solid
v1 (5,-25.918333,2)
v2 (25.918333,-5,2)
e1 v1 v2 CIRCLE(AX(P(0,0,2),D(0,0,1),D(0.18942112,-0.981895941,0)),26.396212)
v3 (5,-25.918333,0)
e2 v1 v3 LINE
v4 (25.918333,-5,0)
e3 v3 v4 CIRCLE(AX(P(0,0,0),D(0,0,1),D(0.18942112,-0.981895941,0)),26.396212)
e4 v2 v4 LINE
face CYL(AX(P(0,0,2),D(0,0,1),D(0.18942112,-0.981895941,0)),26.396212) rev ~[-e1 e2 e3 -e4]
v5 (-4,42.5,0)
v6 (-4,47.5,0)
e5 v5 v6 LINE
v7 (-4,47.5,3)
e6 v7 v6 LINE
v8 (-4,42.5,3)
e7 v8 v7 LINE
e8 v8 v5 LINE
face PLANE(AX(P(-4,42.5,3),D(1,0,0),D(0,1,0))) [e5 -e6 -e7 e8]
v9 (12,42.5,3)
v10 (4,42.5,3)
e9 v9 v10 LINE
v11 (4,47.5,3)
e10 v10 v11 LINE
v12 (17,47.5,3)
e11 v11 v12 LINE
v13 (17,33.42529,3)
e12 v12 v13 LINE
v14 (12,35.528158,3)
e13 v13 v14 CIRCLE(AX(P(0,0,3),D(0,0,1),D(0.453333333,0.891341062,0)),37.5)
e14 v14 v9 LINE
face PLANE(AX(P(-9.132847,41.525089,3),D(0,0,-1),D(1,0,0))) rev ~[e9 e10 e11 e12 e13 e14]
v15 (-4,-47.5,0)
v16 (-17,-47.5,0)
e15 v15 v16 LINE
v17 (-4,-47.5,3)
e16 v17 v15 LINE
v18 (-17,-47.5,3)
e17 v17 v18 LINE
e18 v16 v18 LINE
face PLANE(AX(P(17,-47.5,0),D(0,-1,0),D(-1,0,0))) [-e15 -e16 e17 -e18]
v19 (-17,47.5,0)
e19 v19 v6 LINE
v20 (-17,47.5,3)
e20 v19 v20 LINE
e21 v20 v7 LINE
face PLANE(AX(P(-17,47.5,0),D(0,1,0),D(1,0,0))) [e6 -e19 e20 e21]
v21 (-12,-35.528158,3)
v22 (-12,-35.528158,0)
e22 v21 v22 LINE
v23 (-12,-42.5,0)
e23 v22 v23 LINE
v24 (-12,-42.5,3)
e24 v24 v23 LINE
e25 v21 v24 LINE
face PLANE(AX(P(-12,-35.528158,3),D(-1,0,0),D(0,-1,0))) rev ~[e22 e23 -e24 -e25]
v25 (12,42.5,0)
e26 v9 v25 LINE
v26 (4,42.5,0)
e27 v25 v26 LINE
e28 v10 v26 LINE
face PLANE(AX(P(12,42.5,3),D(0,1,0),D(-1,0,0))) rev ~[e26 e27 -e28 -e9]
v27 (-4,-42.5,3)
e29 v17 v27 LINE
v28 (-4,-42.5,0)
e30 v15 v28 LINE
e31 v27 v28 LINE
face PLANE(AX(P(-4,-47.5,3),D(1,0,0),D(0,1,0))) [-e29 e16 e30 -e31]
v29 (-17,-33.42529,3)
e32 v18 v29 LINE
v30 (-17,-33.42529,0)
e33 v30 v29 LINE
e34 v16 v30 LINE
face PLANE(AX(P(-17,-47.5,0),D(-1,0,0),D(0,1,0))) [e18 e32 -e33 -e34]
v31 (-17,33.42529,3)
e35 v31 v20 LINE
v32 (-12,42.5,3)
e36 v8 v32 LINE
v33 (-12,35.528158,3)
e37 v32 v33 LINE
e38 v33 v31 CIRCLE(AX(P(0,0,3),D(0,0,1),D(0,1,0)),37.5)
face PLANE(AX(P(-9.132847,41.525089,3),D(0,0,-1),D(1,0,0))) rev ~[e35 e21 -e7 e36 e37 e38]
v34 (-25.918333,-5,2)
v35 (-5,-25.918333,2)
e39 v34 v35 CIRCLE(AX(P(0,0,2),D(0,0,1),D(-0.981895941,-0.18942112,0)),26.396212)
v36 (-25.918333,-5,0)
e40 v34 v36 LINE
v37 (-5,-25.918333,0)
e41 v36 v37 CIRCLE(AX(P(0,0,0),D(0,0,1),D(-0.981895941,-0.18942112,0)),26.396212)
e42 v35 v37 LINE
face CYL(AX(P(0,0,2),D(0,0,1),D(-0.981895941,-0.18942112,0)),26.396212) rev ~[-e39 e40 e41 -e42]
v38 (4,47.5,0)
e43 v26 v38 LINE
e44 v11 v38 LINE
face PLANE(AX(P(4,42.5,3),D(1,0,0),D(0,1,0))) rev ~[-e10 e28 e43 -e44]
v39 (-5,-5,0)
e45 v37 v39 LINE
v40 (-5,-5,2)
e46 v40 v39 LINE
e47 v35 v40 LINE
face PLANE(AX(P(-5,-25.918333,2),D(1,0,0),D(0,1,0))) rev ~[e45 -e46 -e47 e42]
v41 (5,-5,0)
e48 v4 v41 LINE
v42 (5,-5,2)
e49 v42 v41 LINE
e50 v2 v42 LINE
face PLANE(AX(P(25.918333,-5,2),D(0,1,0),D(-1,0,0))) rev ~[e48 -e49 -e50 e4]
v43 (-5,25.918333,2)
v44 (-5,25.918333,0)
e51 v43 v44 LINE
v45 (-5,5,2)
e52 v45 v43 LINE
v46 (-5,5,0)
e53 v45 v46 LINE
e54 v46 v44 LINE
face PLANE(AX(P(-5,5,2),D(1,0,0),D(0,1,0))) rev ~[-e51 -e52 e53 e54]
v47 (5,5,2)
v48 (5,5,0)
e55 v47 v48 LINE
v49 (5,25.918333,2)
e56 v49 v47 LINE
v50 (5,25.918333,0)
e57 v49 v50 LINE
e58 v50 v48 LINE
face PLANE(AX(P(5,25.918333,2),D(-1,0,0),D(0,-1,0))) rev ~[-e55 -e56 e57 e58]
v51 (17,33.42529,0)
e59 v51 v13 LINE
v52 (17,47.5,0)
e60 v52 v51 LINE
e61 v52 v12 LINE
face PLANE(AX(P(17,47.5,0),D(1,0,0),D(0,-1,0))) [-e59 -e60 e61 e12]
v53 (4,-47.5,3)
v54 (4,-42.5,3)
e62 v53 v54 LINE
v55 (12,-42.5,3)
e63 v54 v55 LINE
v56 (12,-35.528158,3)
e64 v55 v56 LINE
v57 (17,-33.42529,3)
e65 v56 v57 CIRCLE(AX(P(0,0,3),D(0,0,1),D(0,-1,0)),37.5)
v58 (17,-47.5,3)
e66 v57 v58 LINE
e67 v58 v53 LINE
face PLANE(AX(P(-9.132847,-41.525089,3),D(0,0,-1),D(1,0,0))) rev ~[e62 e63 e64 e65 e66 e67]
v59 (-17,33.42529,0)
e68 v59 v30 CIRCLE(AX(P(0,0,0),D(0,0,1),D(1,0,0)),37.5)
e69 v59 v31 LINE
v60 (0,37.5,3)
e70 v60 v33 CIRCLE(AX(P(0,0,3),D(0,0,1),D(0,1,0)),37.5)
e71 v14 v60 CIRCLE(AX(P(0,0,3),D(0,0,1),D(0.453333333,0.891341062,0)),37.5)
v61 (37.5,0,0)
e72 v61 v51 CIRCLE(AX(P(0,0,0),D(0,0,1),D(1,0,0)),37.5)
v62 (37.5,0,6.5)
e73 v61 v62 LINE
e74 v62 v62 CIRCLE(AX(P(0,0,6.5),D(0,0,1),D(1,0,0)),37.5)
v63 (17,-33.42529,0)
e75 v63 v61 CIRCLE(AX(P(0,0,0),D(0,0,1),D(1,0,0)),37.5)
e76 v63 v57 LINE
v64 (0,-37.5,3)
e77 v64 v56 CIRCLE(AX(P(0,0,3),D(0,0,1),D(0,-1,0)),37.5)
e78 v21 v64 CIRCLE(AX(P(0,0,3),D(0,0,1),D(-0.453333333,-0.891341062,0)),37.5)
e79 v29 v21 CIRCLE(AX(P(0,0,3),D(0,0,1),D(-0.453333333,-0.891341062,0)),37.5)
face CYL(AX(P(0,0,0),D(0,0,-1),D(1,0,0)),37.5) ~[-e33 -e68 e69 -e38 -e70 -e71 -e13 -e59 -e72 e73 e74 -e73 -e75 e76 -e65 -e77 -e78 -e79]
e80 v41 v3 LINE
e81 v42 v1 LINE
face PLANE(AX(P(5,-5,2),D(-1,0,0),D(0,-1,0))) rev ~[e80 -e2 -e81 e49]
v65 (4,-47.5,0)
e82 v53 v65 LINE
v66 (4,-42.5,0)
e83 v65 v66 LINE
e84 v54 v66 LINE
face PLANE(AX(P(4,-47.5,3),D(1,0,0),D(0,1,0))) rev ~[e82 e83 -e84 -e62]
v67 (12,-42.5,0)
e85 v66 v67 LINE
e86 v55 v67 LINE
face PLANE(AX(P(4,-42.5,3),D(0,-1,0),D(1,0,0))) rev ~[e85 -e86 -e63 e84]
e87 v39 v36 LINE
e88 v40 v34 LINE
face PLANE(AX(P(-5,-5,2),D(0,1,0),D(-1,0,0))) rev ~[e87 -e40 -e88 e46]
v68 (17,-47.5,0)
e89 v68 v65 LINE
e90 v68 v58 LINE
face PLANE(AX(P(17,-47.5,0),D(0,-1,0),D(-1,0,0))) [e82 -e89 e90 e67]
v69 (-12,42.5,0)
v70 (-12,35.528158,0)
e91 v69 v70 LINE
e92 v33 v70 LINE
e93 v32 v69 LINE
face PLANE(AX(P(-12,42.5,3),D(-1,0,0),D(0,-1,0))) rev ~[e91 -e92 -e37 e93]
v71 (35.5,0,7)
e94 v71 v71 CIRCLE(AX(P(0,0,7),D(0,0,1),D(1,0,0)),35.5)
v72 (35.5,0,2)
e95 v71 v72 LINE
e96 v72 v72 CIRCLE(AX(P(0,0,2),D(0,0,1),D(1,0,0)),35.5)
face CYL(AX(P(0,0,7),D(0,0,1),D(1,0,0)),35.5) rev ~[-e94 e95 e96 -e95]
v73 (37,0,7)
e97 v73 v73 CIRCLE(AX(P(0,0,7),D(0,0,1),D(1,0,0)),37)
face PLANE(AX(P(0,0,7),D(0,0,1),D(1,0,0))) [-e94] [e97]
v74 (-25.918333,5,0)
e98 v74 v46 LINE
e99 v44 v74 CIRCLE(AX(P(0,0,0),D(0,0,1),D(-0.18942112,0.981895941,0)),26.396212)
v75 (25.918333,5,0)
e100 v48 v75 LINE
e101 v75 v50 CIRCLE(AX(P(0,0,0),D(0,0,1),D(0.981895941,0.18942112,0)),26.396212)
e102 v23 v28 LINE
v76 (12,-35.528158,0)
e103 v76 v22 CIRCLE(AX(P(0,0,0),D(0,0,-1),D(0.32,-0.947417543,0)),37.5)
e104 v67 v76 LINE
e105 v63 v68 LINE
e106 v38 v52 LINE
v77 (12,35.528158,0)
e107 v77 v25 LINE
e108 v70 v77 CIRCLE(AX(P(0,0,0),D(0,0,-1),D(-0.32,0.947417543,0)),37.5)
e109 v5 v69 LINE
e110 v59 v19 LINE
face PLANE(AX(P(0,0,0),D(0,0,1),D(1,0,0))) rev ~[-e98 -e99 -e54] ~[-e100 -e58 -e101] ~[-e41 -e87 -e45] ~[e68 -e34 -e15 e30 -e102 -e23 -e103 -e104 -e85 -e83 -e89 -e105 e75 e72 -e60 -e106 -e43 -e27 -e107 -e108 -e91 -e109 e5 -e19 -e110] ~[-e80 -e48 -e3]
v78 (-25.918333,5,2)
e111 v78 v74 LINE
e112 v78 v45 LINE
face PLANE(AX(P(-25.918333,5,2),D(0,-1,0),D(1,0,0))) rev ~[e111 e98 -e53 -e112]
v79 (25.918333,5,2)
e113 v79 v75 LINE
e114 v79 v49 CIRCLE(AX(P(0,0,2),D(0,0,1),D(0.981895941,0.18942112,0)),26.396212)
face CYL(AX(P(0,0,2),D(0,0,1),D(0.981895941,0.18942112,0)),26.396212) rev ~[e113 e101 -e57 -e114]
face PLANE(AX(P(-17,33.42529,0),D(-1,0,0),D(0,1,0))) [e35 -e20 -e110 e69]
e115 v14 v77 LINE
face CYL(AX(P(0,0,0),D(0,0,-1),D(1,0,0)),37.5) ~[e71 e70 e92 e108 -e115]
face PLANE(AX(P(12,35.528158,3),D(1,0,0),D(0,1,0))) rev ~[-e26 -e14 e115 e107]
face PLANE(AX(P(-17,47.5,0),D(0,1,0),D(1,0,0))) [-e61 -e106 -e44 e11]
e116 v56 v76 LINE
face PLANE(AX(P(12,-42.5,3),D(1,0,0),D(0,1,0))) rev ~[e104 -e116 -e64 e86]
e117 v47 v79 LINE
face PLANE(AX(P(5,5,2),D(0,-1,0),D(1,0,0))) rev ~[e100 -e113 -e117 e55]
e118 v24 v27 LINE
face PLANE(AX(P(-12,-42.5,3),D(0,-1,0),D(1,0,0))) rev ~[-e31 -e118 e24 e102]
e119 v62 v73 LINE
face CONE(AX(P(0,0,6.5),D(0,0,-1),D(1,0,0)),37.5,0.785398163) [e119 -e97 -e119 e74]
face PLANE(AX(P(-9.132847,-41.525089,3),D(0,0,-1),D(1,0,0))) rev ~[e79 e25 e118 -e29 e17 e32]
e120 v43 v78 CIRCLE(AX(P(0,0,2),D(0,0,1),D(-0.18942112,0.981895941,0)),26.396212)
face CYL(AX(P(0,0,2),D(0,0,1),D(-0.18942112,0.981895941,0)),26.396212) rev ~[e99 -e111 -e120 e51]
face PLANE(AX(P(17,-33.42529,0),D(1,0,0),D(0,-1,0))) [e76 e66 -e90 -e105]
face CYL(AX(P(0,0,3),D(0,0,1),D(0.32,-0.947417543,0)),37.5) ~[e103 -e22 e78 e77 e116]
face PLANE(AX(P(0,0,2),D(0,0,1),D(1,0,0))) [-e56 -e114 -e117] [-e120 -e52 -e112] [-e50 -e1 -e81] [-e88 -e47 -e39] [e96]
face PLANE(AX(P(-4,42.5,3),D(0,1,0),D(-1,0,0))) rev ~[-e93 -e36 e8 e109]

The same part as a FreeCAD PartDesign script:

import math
import FreeCAD as App
import Part
import Sketcher

V = App.Vector
Q = App.Units.Quantity


def edges_at(feature, points):
    """Names of the edges that pass closest to the given points."""
    edges = feature.Shape.Edges
    near = lambda p: min(range(len(edges)), key=lambda i: edges[i].distToShape(Part.Vertex(*p))[0])
    return sorted({f"Edge{near(p) + 1}" for p in points})

doc = App.newDocument("Part")
body = doc.addObject("PartDesign::Body", "Body")

sketch1 = body.newObject("Sketcher::SketchObject", "Sketch")
sketch1.AttachmentSupport = (doc.getObject("XY_Plane"), [""])
sketch1.MapMode = "FlatFace"
sketch1.addGeometry(Part.Circle(V(0, 0, 0), V(0, 0, 1), 38), False)
sketch1.addConstraint([
    Sketcher.Constraint("Coincident", 0, 3, -1, 1),
    Sketcher.Constraint("Diameter", 0, Q("75 mm")),
])
pad1 = body.newObject("PartDesign::Pad", "Pad")
pad1.Profile = sketch1
pad1.Length = 7

sketch2 = body.newObject("Sketcher::SketchObject", "Sketch001")
sketch2.AttachmentSupport = (doc.getObject("XY_Plane"), [""])
sketch2.MapMode = "FlatFace"
sketch2.AttachmentOffset = App.Placement(V(0, 0, 7), App.Rotation())
sketch2.addGeometry(Part.Circle(V(0, 0, 0), V(0, 0, 1), 36), False)
sketch2.addConstraint([
    Sketcher.Constraint("Coincident", 0, 3, -1, 1),
    Sketcher.Constraint("Diameter", 0, Q("71 mm")),
])
pocket1 = body.newObject("PartDesign::Pocket", "Pocket")
pocket1.Profile = sketch2
pocket1.Length = 5
doc.recompute()

chamfer = body.newObject("PartDesign::Chamfer", "Chamfer")
chamfer.Base = (pocket1, edges_at(pocket1, [(-37.5, 0, 7)]))
chamfer.Size = 0.5

sketch3 = body.newObject("Sketcher::SketchObject", "Sketch002")
sketch3.AttachmentSupport = (doc.getObject("XY_Plane"), [""])
sketch3.MapMode = "FlatFace"
sketch3.addGeometry([
    Part.ArcOfCircle(Part.Circle(V(0, 0, 0), V(0, 0, 1), 38), math.radians(-117), math.radians(-90)),
    Part.ArcOfCircle(Part.Circle(V(0, 0, 0), V(0, 0, 1), 38), math.radians(-90), math.radians(-63)),
    Part.LineSegment(V(17, -33, 0), V(17, -48, 0)),
    Part.LineSegment(V(17, -48, 0), V(-17, -48, 0)),
    Part.LineSegment(V(-17, -48, 0), V(-17, -33, 0)),
    Part.ArcOfCircle(Part.Circle(V(0, 0, 0), V(0, 0, 1), 38), math.radians(90), math.radians(117)),
    Part.LineSegment(V(-17, 33, 0), V(-17, 48, 0)),
    Part.LineSegment(V(-17, 48, 0), V(17, 48, 0)),
    Part.LineSegment(V(17, 48, 0), V(17, 33, 0)),
    Part.ArcOfCircle(Part.Circle(V(0, 0, 0), V(0, 0, 1), 38), math.radians(63), math.radians(90)),
], False)
sketch3.addConstraint([
    Sketcher.Constraint("Tangent", 0, 2, 1, 1),
    Sketcher.Constraint("Coincident", 1, 2, 2, 1),
    Sketcher.Constraint("Coincident", 2, 2, 3, 1),
    Sketcher.Constraint("Coincident", 3, 2, 4, 1),
    Sketcher.Constraint("Coincident", 4, 2, 0, 1),
    Sketcher.Constraint("Coincident", 5, 2, 6, 1),
    Sketcher.Constraint("Coincident", 6, 2, 7, 1),
    Sketcher.Constraint("Coincident", 7, 2, 8, 1),
    Sketcher.Constraint("Coincident", 8, 2, 9, 1),
    Sketcher.Constraint("Tangent", 9, 2, 5, 1),
    Sketcher.Constraint("Vertical", 2),
    Sketcher.Constraint("Horizontal", 3),
    Sketcher.Constraint("Vertical", 4),
    Sketcher.Constraint("Vertical", 6),
    Sketcher.Constraint("Horizontal", 7),
    Sketcher.Constraint("Vertical", 8),
    Sketcher.Constraint("Coincident", 0, 3, -1, 1),
    Sketcher.Constraint("Coincident", 5, 3, -1, 1),
    Sketcher.Constraint("Equal", 0, 1),
    Sketcher.Constraint("Equal", 1, 5),
    Sketcher.Constraint("Equal", 5, 9),
    Sketcher.Constraint("Symmetric", 2, 2, 6, 2, -1, 1),
    Sketcher.Constraint("PointOnObject", 0, 2, -2),
    Sketcher.Constraint("PointOnObject", 9, 2, -2),
    Sketcher.Constraint("Horizontal", 1, 2, 4, 2),
    Sketcher.Constraint("Horizontal", 5, 2, 8, 2),
    Sketcher.Constraint("Radius", 0, Q("37.5 mm")),
    Sketcher.Constraint("DistanceX", 3, 2, 3, 1, Q("34 mm")),
    Sketcher.Constraint("DistanceY", 2, 2, 0, 2, Q("10 mm")),
])
pad2 = body.newObject("PartDesign::Pad", "Pad001")
pad2.Profile = sketch3
pad2.Length = 3

sketch4 = body.newObject("Sketcher::SketchObject", "Sketch003")
sketch4.AttachmentSupport = (doc.getObject("XY_Plane"), [""])
sketch4.MapMode = "FlatFace"
sketch4.AttachmentOffset = App.Placement(V(0, 0, 3), App.Rotation())
sketch4.addGeometry([
    Part.LineSegment(V(-12, 42, 0), V(-12, 36, 0)),
    Part.ArcOfCircle(Part.Circle(V(0, 0, 0), V(0, 0, 1), 38), math.radians(71), math.radians(109)),
    Part.LineSegment(V(12, 36, 0), V(12, 42, 0)),
    Part.LineSegment(V(12, 42, 0), V(4, 42, 0)),
    Part.LineSegment(V(4, 42, 0), V(4, 48, 0)),
    Part.LineSegment(V(4, 48, 0), V(-4, 48, 0)),
    Part.LineSegment(V(-4, 48, 0), V(-4, 42, 0)),
    Part.LineSegment(V(-4, 42, 0), V(-12, 42, 0)),
], False)
sketch4.addConstraint([
    Sketcher.Constraint("Coincident", 0, 2, 1, 2),
    Sketcher.Constraint("Coincident", 1, 1, 2, 1),
    Sketcher.Constraint("Coincident", 2, 2, 3, 1),
    Sketcher.Constraint("Coincident", 3, 2, 4, 1),
    Sketcher.Constraint("Coincident", 4, 2, 5, 1),
    Sketcher.Constraint("Coincident", 5, 2, 6, 1),
    Sketcher.Constraint("Coincident", 6, 2, 7, 1),
    Sketcher.Constraint("Coincident", 7, 2, 0, 1),
    Sketcher.Constraint("Vertical", 0),
    Sketcher.Constraint("Vertical", 2),
    Sketcher.Constraint("Horizontal", 3),
    Sketcher.Constraint("Vertical", 4),
    Sketcher.Constraint("Horizontal", 5),
    Sketcher.Constraint("Vertical", 6),
    Sketcher.Constraint("Horizontal", 7),
    Sketcher.Constraint("Coincident", 1, 3, -1, 1),
    Sketcher.Constraint("Symmetric", 3, 2, 6, 2, -2),
    Sketcher.Constraint("Horizontal", 0, 2, 1, 1),
    Sketcher.Constraint("Equal", 3, 5),
    Sketcher.Constraint("Radius", 1, Q("37.5 mm")),
    Sketcher.Constraint("DistanceX", 3, 2, 3, 1, Q("8 mm")),
    Sketcher.Constraint("DistanceY", 4, 1, 4, 2, Q("5 mm")),
    Sketcher.Constraint("DistanceY", -1, 1, 2, 2, Q("42.5 mm")),
])
pocket2 = body.newObject("PartDesign::Pocket", "Pocket001")
pocket2.Profile = sketch4
pocket2.Type = "ThroughAll"

sketch5 = body.newObject("Sketcher::SketchObject", "Sketch004")
sketch5.AttachmentSupport = (doc.getObject("XY_Plane"), [""])
sketch5.MapMode = "FlatFace"
sketch5.AttachmentOffset = App.Placement(V(0, 0, 3), App.Rotation())
sketch5.addGeometry([
    Part.LineSegment(V(12, -42, 0), V(12, -36, 0)),
    Part.ArcOfCircle(Part.Circle(V(0, 0, 0), V(0, 0, 1), 38), math.radians(-109), math.radians(-71)),
    Part.LineSegment(V(-12, -36, 0), V(-12, -42, 0)),
    Part.LineSegment(V(-12, -42, 0), V(-4, -42, 0)),
    Part.LineSegment(V(-4, -42, 0), V(-4, -48, 0)),
    Part.LineSegment(V(-4, -48, 0), V(4, -48, 0)),
    Part.LineSegment(V(4, -48, 0), V(4, -42, 0)),
    Part.LineSegment(V(4, -42, 0), V(12, -42, 0)),
], False)
sketch5.addConstraint([
    Sketcher.Constraint("Coincident", 0, 2, 1, 2),
    Sketcher.Constraint("Coincident", 1, 1, 2, 1),
    Sketcher.Constraint("Coincident", 2, 2, 3, 1),
    Sketcher.Constraint("Coincident", 3, 2, 4, 1),
    Sketcher.Constraint("Coincident", 4, 2, 5, 1),
    Sketcher.Constraint("Coincident", 5, 2, 6, 1),
    Sketcher.Constraint("Coincident", 6, 2, 7, 1),
    Sketcher.Constraint("Coincident", 7, 2, 0, 1),
    Sketcher.Constraint("Vertical", 0),
    Sketcher.Constraint("Vertical", 2),
    Sketcher.Constraint("Horizontal", 3),
    Sketcher.Constraint("Vertical", 4),
    Sketcher.Constraint("Horizontal", 5),
    Sketcher.Constraint("Vertical", 6),
    Sketcher.Constraint("Horizontal", 7),
    Sketcher.Constraint("Coincident", 1, 3, -1, 1),
    Sketcher.Constraint("Symmetric", 3, 2, 6, 2, -2),
    Sketcher.Constraint("Horizontal", 0, 2, 1, 1),
    Sketcher.Constraint("Equal", 3, 5),
    Sketcher.Constraint("Radius", 1, Q("37.5 mm")),
    Sketcher.Constraint("DistanceX", 3, 1, 3, 2, Q("8 mm")),
    Sketcher.Constraint("DistanceY", 4, 2, 4, 1, Q("5 mm")),
    Sketcher.Constraint("DistanceY", 2, 2, -1, 1, Q("42.5 mm")),
])
pocket3 = body.newObject("PartDesign::Pocket", "Pocket002")
pocket3.Profile = sketch5
pocket3.Type = "ThroughAll"

sketch6 = body.newObject("Sketcher::SketchObject", "Sketch005")
sketch6.AttachmentSupport = (doc.getObject("XY_Plane"), [""])
sketch6.MapMode = "FlatFace"
sketch6.AttachmentOffset = App.Placement(V(0, 0, 2), App.Rotation())
sketch6.addGeometry([
    Part.LineSegment(V(5, 5, 0), V(26, 5, 0)),
    Part.ArcOfCircle(Part.Circle(V(0, 0, 0), V(0, 0, 1), 26), math.radians(11), math.radians(79)),
    Part.LineSegment(V(5, 26, 0), V(5, 5, 0)),
    Part.LineSegment(V(-5, 5, 0), V(-5, 26, 0)),
    Part.ArcOfCircle(Part.Circle(V(0, 0, 0), V(0, 0, 1), 26), math.radians(101), math.radians(169)),
    Part.LineSegment(V(-26, 5, 0), V(-5, 5, 0)),
    Part.ArcOfCircle(Part.Circle(V(0, 0, 0), V(0, 0, 1), 26), math.radians(-79), math.radians(-11)),
    Part.LineSegment(V(26, -5, 0), V(5, -5, 0)),
    Part.LineSegment(V(5, -5, 0), V(5, -26, 0)),
    Part.ArcOfCircle(Part.Circle(V(0, 0, 0), V(0, 0, 1), 26), math.radians(-169), math.radians(-101)),
    Part.LineSegment(V(-5, -26, 0), V(-5, -5, 0)),
    Part.LineSegment(V(-5, -5, 0), V(-26, -5, 0)),
], False)
sketch6.addConstraint([
    Sketcher.Constraint("Coincident", 0, 2, 1, 1),
    Sketcher.Constraint("Coincident", 1, 2, 2, 1),
    Sketcher.Constraint("Coincident", 2, 2, 0, 1),
    Sketcher.Constraint("Coincident", 3, 2, 4, 1),
    Sketcher.Constraint("Coincident", 4, 2, 5, 1),
    Sketcher.Constraint("Coincident", 5, 2, 3, 1),
    Sketcher.Constraint("Coincident", 6, 2, 7, 1),
    Sketcher.Constraint("Coincident", 7, 2, 8, 1),
    Sketcher.Constraint("Coincident", 8, 2, 6, 1),
    Sketcher.Constraint("Coincident", 9, 2, 10, 1),
    Sketcher.Constraint("Coincident", 10, 2, 11, 1),
    Sketcher.Constraint("Coincident", 11, 2, 9, 1),
    Sketcher.Constraint("Horizontal", 0),
    Sketcher.Constraint("Vertical", 2),
    Sketcher.Constraint("Vertical", 3),
    Sketcher.Constraint("Horizontal", 5),
    Sketcher.Constraint("Horizontal", 7),
    Sketcher.Constraint("Vertical", 8),
    Sketcher.Constraint("Vertical", 10),
    Sketcher.Constraint("Horizontal", 11),
    Sketcher.Constraint("Coincident", 1, 3, -1, 1),
    Sketcher.Constraint("Coincident", 4, 3, -1, 1),
    Sketcher.Constraint("Coincident", 6, 3, -1, 1),
    Sketcher.Constraint("Coincident", 9, 3, -1, 1),
    Sketcher.Constraint("Equal", 1, 4),
    Sketcher.Constraint("Equal", 4, 6),
    Sketcher.Constraint("Equal", 6, 9),
    Sketcher.Constraint("Symmetric", 5, 2, 7, 2, -1, 1),
    Sketcher.Constraint("Symmetric", 2, 2, 10, 2, -1, 1),
    Sketcher.Constraint("Symmetric", 2, 2, 5, 2, -2),
    Sketcher.Constraint("Equal", 11, 2),
    Sketcher.Constraint("DistanceY", -1, 1, 0, 2, Q("5 mm")),
    Sketcher.Constraint("Radius", 1, Q("26.396212 mm")),
])
pocket4 = body.newObject("PartDesign::Pocket", "Pocket003")
pocket4.Profile = sketch6
pocket4.Type = "ThroughAll"

doc.recompute()
